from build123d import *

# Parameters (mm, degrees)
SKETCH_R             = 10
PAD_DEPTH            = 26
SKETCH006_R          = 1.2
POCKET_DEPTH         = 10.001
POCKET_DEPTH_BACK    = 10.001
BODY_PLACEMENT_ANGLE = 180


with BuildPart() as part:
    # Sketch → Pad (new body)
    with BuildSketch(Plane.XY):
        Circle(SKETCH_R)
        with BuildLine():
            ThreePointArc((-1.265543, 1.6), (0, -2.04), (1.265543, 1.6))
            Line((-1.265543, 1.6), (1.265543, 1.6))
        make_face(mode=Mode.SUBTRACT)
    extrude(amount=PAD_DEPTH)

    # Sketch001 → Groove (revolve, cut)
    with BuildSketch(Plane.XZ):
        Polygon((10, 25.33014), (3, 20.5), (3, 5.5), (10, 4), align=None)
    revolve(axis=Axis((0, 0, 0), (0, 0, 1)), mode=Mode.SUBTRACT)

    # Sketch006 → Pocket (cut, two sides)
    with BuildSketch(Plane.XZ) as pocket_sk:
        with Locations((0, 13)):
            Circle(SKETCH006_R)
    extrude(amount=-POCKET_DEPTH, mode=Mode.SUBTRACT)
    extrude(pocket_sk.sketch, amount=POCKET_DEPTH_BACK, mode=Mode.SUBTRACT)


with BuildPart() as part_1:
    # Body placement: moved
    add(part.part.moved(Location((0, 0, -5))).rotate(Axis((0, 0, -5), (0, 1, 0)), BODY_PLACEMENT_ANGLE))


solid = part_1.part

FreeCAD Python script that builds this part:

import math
import FreeCAD as App
import Part
import Sketcher


def add_polygon(sketch, points):
    """Adds a closed chain of lines whose ends are joined by coincident constraints."""
    first, n = sketch.GeometryCount, len(points)
    for a, b in zip(points, points[1:] + points[:1]):
        sketch.addGeometry(Part.LineSegment(App.Vector(*a, 0), App.Vector(*b, 0)), False)
    for i in range(n):
        sketch.addConstraint(Sketcher.Constraint("Coincident", first + i, 2, first + (i + 1) % n, 1))

doc = App.newDocument("Part")
params = doc.addObject("Spreadsheet::Sheet", "Params")
for row, (alias, value) in enumerate([
    ("sketch1_diameter", "20 mm"),
    ("sketch1_radius", "2.04 mm"),
    ("pad1_length", "26 mm"),
    ("sketch2_height", "15 mm"),
    ("groove_angle", "360 deg"),
    ("sketch3_diameter", "2.4 mm"),
], start=1):
    params.set(f"A{row}", alias)
    params.set(f"B{row}", "=" + value)
    params.setAlias(f"B{row}", alias)

body = doc.addObject("PartDesign::Body", "Body")

# Sketch on XY plane
sketch1 = doc.addObject("Sketcher::SketchObject", "Sketch")
body.addObject(sketch1)
sketch1.AttachmentSupport = (doc.XY_Plane, [""])
sketch1.MapMode = "FlatFace"
sketch1.addGeometry(Part.Circle(App.Vector(0, 0, 0), App.Vector(0, 0, 1), 10), False)
sketch1.addGeometry(Part.ArcOfCircle(Part.Circle(App.Vector(0, 0, 0), App.Vector(0, 0, 1), 2), math.radians(128), math.radians(412)), False)
sketch1.addGeometry(Part.LineSegment(App.Vector(-1.3, 1.6, 0), App.Vector(1.3, 1.6, 0)), False)
sketch1.addConstraint(Sketcher.Constraint("Coincident", 1, 1, 2, 1))
sketch1.addConstraint(Sketcher.Constraint("Coincident", 2, 2, 1, 2))
sketch1.addConstraint(Sketcher.Constraint("Horizontal", 2))
sketch1.addConstraint(Sketcher.Constraint("Coincident", 0, 3, -1, 1))
sketch1.addConstraint(Sketcher.Constraint("Coincident", 1, 3, -1, 1))
sketch1.addConstraint(Sketcher.Constraint("Diameter", 0, 20.0))
sketch1.addConstraint(Sketcher.Constraint("Radius", 1, 2.04))
sketch1.addConstraint(Sketcher.Constraint("DistanceY", -1, 1, 1, 1, 1.6))
sketch1.setExpression("Constraints[5]", "Params.sketch1_diameter")
sketch1.setExpression("Constraints[6]", "Params.sketch1_radius")
pad1 = doc.addObject("PartDesign::Pad", "Pad")
body.addObject(pad1)
pad1.Profile = sketch1
pad1.setExpression("Length", "Params.pad1_length")

# Sketch on XZ plane
sketch2 = doc.addObject("Sketcher::SketchObject", "Sketch001")
body.addObject(sketch2)
sketch2.AttachmentSupport = (doc.XZ_Plane, [""])
sketch2.MapMode = "FlatFace"
add_polygon(sketch2, [(10, 25), (3, 20), (3, 6), (10, 4)])  # lines 0-3
sketch2.addConstraint(Sketcher.Constraint("Vertical", 1))
sketch2.addConstraint(Sketcher.Constraint("Vertical", 3))
sketch2.addConstraint(Sketcher.Constraint("DistanceY", 1, 2, 1, 1, 15.0))
sketch2.addConstraint(Sketcher.Constraint("DistanceX", -1, 1, 0, 2, 3.0))
sketch2.addConstraint(Sketcher.Constraint("DistanceX", -1, 1, 2, 2, 10.0))
sketch2.addConstraint(Sketcher.Constraint("DistanceY", -1, 1, 2, 2, 4.0))
sketch2.addConstraint(Sketcher.Constraint("DistanceY", -1, 1, 0, 2, 20.5))
sketch2.addConstraint(Sketcher.Constraint("DistanceY", 3, 1, 3, 2, 21.33014))
sketch2.setExpression("Constraints[6]", "Params.sketch2_height")
groove = doc.addObject("PartDesign::Groove", "Groove")
body.addObject(groove)
groove.Profile = sketch2
groove.ReferenceAxis = (sketch2, ["V_Axis"])
groove.setExpression("Angle", "Params.groove_angle")

# Sketch on XZ plane
sketch3 = doc.addObject("Sketcher::SketchObject", "Sketch002")
body.addObject(sketch3)
sketch3.AttachmentSupport = (doc.XZ_Plane, [""])
sketch3.MapMode = "FlatFace"
sketch3.addGeometry(Part.Circle(App.Vector(0, 13, 0), App.Vector(0, 0, 1), 1.2), False)
sketch3.addConstraint(Sketcher.Constraint("PointOnObject", 0, 3, -2))
sketch3.addConstraint(Sketcher.Constraint("Diameter", 0, 2.4))
sketch3.addConstraint(Sketcher.Constraint("DistanceY", -1, 1, 0, 3, 13.0))
sketch3.setExpression("Constraints[1]", "Params.sketch3_diameter")
pocket1 = doc.addObject("PartDesign::Pocket", "Pocket")
body.addObject(pocket1)
pocket1.Profile = sketch3
pocket1.Type = "ThroughAll"
pocket1.Midplane = True
body2 = doc.addObject("PartDesign::Body", "Body001")
doc.recompute()

body.Placement = App.Placement(App.Vector(0, 0, -5), App.Rotation(App.Vector(0, 1, 0), 180))
boolean = doc.addObject("PartDesign::Boolean", "Boolean")
body2.addObject(boolean)
boolean.Type = "Fuse"
boolean.addObjects([body])

doc.recompute()
